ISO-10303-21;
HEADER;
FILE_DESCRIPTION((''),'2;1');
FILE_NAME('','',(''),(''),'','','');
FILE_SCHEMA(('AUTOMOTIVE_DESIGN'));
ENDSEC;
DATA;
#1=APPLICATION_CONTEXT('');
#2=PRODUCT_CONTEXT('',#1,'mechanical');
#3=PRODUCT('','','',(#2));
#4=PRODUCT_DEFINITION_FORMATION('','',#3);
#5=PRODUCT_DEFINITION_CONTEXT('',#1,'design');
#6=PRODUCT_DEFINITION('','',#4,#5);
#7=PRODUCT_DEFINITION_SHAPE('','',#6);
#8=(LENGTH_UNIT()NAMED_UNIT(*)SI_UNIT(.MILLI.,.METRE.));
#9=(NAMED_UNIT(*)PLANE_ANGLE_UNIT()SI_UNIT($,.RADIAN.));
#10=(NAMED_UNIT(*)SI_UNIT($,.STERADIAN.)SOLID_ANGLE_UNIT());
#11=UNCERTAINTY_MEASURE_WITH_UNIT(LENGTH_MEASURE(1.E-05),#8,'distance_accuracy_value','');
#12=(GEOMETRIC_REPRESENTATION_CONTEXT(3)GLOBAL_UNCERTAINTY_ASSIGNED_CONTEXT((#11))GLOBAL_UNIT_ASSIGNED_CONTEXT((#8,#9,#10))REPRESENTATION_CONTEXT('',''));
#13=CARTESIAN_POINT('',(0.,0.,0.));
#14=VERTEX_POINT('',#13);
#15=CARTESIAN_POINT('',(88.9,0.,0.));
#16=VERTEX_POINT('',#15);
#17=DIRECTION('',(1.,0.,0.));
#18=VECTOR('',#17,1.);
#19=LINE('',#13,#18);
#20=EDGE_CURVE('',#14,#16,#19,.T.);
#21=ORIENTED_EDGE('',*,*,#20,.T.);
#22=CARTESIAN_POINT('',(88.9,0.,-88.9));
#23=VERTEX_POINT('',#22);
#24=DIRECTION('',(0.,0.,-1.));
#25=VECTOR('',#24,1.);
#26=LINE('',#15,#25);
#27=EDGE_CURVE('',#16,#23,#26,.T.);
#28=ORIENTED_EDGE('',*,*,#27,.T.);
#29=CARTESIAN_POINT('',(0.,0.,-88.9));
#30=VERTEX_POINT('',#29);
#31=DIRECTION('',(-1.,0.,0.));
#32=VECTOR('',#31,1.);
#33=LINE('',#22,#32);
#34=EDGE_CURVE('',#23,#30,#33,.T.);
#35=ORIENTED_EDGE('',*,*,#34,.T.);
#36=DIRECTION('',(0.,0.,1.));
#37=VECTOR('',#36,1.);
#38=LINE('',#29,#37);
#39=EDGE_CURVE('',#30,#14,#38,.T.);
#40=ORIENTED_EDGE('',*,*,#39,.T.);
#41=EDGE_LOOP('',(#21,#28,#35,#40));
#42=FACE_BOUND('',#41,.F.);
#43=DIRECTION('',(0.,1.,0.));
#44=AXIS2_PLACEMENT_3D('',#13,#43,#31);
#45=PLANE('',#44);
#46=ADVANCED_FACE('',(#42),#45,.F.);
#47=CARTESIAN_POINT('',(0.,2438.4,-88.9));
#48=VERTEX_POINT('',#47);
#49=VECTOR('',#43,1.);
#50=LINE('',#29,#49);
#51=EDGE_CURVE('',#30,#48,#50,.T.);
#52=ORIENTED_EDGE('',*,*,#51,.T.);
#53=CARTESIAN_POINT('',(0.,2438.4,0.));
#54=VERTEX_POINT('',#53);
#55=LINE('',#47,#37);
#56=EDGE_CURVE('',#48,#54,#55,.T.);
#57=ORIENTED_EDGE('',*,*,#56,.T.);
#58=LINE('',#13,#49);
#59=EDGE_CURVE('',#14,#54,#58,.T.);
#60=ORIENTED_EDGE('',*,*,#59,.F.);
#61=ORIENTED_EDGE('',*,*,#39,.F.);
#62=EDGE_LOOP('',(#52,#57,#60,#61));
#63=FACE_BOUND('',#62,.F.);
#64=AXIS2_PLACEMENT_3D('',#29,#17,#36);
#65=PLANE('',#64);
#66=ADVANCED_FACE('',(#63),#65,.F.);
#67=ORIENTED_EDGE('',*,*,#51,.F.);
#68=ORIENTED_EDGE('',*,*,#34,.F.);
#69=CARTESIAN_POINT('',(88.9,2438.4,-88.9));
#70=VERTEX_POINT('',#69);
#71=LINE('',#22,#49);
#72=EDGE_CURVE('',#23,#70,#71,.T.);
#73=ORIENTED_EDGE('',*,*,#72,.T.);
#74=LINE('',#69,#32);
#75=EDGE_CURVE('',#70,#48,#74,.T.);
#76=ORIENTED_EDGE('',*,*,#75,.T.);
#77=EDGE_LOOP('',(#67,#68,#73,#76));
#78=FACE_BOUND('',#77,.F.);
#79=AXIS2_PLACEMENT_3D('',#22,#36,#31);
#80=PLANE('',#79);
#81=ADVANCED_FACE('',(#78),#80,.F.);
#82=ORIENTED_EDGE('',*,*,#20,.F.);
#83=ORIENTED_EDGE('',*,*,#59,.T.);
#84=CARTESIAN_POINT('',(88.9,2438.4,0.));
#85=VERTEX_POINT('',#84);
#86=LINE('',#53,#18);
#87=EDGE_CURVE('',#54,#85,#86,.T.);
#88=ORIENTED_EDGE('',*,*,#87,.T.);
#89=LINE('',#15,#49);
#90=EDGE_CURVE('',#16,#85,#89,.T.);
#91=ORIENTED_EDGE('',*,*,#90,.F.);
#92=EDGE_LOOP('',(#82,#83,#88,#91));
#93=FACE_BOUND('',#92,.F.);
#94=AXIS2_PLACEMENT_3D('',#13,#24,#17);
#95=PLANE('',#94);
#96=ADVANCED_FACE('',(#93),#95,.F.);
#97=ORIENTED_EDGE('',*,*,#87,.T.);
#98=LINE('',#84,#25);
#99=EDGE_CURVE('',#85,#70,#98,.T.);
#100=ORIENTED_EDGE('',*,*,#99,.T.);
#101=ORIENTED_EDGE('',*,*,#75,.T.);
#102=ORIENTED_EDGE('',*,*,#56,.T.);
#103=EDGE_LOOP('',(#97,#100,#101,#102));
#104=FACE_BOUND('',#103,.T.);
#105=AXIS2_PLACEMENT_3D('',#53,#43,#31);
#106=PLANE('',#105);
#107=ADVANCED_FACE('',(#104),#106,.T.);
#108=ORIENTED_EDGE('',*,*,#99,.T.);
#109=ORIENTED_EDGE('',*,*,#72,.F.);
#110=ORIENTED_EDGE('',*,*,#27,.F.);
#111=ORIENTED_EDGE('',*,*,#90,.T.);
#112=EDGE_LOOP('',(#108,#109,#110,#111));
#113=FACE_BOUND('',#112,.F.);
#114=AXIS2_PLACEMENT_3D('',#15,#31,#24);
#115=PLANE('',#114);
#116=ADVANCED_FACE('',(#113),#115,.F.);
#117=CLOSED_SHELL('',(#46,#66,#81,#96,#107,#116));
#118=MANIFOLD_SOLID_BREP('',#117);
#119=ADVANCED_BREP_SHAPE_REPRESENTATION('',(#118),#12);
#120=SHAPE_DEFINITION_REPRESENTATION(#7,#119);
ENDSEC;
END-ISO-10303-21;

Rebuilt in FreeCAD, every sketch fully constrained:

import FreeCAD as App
import Part
import Sketcher
Q = App.Units.Quantity


def add_polygon(sketch, points):
    """Adds a closed chain of lines whose ends are joined by coincident constraints."""
    first, n = sketch.GeometryCount, len(points)
    for a, b in zip(points, points[1:] + points[:1]):
        sketch.addGeometry(Part.LineSegment(App.Vector(*a, 0), App.Vector(*b, 0)), False)
    for i in range(n):
        sketch.addConstraint(Sketcher.Constraint("Coincident", first + i, 2, first + (i + 1) % n, 1))

doc = App.newDocument("Part")
body = doc.addObject("PartDesign::Body", "Body")

# Sketch on XZ plane
sketch1 = doc.addObject("Sketcher::SketchObject", "Sketch")
body.addObject(sketch1)
sketch1.AttachmentSupport = (doc.XZ_Plane, [""])
sketch1.MapMode = "FlatFace"
add_polygon(sketch1, [(0, -89), (0, 0), (89, 0), (89, -89)])  # lines 0-3
sketch1.addConstraint([
    Sketcher.Constraint("Vertical", 0),
    Sketcher.Constraint("Horizontal", 1),
    Sketcher.Constraint("Vertical", 2),
    Sketcher.Constraint("Horizontal", 3),
    Sketcher.Constraint("Coincident", 0, 2, -1, 1),
    Sketcher.Constraint("Equal", 3, 0),
    Sketcher.Constraint("DistanceX", 1, 1, 1, 2, Q("3.5 in")),
])
pad1 = doc.addObject("PartDesign::Pad", "Pad")
body.addObject(pad1)
pad1.Profile = sketch1
pad1.Length = Q("96 in")
pad1.Reversed = True

doc.recompute()
